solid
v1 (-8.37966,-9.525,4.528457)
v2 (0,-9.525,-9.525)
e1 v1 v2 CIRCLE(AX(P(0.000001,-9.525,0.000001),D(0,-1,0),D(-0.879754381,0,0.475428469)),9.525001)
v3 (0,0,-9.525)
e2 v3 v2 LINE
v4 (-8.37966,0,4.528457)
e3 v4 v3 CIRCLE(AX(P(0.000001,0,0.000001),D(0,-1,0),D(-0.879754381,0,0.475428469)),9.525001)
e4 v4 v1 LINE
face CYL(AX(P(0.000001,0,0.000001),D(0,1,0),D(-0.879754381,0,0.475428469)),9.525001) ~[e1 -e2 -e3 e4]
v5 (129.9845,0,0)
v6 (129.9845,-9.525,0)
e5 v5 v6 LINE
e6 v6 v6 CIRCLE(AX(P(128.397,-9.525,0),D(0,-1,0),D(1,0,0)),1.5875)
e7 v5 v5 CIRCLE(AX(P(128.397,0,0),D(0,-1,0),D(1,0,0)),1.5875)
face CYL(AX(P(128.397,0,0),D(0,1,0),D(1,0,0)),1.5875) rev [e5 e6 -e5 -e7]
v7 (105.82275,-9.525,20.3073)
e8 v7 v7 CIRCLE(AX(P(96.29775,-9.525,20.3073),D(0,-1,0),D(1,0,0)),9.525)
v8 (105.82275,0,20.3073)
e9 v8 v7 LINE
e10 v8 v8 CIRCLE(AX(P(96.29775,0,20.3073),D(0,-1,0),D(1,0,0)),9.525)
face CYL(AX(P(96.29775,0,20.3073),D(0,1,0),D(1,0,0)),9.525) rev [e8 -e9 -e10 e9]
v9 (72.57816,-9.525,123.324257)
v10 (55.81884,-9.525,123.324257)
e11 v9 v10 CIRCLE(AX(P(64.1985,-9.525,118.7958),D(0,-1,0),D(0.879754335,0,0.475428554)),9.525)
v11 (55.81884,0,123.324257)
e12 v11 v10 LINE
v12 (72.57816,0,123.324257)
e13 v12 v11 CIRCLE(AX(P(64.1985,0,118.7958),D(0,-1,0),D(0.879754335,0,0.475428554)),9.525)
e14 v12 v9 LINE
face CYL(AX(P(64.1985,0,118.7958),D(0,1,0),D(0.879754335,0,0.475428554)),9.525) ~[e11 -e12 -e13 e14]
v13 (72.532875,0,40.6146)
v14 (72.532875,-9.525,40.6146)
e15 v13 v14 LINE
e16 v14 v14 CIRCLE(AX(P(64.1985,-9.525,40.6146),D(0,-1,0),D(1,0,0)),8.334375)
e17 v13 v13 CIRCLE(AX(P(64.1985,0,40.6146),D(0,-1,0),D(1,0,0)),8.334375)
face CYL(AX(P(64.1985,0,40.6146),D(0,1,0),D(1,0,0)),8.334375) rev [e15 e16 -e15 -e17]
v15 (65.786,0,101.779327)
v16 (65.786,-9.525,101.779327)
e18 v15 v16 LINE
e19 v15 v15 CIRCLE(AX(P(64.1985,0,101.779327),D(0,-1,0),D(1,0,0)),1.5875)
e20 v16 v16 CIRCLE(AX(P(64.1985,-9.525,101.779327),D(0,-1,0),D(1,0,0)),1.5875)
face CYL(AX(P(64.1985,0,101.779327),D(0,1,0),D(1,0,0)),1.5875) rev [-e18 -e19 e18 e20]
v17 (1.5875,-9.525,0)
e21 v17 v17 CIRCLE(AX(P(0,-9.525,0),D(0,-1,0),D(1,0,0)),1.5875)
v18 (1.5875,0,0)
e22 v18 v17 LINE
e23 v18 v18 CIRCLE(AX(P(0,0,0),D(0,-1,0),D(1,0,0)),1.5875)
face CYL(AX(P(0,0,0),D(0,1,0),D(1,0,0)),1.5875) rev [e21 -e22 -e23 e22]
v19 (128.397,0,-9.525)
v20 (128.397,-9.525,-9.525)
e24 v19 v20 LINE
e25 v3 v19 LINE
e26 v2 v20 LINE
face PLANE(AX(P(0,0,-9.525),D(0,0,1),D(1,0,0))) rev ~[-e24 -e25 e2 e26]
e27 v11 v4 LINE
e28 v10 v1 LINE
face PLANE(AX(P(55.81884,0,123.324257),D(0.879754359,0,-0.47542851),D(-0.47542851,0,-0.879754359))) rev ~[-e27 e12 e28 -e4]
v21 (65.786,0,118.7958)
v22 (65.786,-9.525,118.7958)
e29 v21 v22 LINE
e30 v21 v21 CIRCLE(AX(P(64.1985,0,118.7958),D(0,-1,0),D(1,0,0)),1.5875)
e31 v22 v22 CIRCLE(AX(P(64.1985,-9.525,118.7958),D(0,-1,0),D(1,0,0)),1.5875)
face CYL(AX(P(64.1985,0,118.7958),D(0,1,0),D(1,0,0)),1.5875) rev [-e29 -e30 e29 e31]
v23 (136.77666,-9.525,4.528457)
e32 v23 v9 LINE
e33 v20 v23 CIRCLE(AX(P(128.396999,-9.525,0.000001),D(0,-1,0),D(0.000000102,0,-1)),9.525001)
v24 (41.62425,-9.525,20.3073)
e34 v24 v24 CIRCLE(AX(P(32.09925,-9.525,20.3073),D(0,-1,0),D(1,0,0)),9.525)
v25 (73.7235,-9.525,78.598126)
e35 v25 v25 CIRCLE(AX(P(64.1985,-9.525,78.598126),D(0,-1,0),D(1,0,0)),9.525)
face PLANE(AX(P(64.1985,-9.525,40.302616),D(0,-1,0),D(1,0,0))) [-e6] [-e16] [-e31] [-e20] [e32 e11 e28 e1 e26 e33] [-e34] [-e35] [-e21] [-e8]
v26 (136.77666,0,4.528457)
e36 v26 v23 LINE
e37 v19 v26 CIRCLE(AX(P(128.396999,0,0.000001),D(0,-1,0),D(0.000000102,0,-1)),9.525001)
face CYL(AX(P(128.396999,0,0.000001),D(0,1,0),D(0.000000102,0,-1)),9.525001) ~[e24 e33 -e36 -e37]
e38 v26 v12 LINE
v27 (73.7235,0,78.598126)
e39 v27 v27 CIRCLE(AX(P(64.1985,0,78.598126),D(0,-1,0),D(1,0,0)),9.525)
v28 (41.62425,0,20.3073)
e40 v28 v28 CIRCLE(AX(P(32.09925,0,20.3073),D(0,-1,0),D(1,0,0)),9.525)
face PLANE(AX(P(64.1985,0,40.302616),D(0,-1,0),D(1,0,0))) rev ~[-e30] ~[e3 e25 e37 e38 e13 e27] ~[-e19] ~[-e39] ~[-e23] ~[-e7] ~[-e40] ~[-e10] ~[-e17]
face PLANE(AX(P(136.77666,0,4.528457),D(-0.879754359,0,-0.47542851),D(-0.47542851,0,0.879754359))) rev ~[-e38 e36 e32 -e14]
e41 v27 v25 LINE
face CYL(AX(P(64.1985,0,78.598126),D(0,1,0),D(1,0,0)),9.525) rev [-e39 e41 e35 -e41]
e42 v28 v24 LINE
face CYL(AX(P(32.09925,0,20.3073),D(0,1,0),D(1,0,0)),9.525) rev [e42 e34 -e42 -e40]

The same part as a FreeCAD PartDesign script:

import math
import FreeCAD as App
import Part
import Sketcher
from FreeCAD import Vector
Q = App.Units.Quantity

doc = App.newDocument("Part")
body = doc.addObject("PartDesign::Body", "Body")

sketch1 = body.newObject("Sketcher::SketchObject", "Sketch")
sketch1.AttachmentSupport = (doc.getObject("XZ_Plane"), [""])
sketch1.MapMode = "FlatFace"
sketch1.addGeometry([
    Part.LineSegment(Vector(136.8, 4.5, 0), Vector(72.6, 123.3, 0)),
    Part.ArcOfCircle(Part.Circle(Vector(64.2, 118.8, 0), Vector(0, 0, 1), 9.5), math.radians(28), math.radians(152)),
    Part.LineSegment(Vector(55.8, 123.3, 0), Vector(-8.4, 4.5, 0)),
    Part.ArcOfCircle(Part.Circle(Vector(0, 0, 0), Vector(0, 0, 1), 9.5), math.radians(152), math.radians(270)),
    Part.LineSegment(Vector(0, -9.5, 0), Vector(128.4, -9.5, 0)),
    Part.ArcOfCircle(Part.Circle(Vector(128.4, 0, 0), Vector(0, 0, 1), 9.5), math.radians(-90), math.radians(28)),
    Part.Circle(Vector(0, 0, 0), Vector(0, 0, 1), 1.6),
    Part.Circle(Vector(32.1, 20.3, 0), Vector(0, 0, 1), 9.5),
    Part.Circle(Vector(96.3, 20.3, 0), Vector(0, 0, 1), 9.5),
    Part.Circle(Vector(128.4, 0, 0), Vector(0, 0, 1), 1.6),
    Part.Circle(Vector(64.2, 40.6, 0), Vector(0, 0, 1), 8.3),
    Part.Circle(Vector(64.2, 78.6, 0), Vector(0, 0, 1), 9.5),
    Part.Circle(Vector(64.2, 101.8, 0), Vector(0, 0, 1), 1.6),
    Part.Circle(Vector(64.2, 118.8, 0), Vector(0, 0, 1), 1.6),
], False)
sketch1.addConstraint([
    Sketcher.Constraint("Tangent", 0, 2, 1, 1),
    Sketcher.Constraint("Tangent", 1, 2, 2, 1),
    Sketcher.Constraint("Tangent", 2, 2, 3, 1),
    Sketcher.Constraint("Tangent", 3, 2, 4, 1),
    Sketcher.Constraint("Tangent", 4, 2, 5, 1),
    Sketcher.Constraint("Tangent", 5, 2, 0, 1),
    Sketcher.Constraint("Horizontal", 4),
    Sketcher.Constraint("Coincident", 3, 3, -1, 1),
    Sketcher.Constraint("Coincident", 6, 3, -1, 1),
    Sketcher.Constraint("Coincident", 9, 3, 5, 3),
    Sketcher.Constraint("Coincident", 13, 3, 1, 3),
    Sketcher.Constraint("Equal", 1, 3),
    Sketcher.Constraint("Equal", 3, 5),
    Sketcher.Constraint("Equal", 5, 7),
    Sketcher.Constraint("Equal", 7, 8),
    Sketcher.Constraint("Equal", 6, 9),
    Sketcher.Constraint("Equal", 8, 11),
    Sketcher.Constraint("Equal", 9, 12),
    Sketcher.Constraint("Equal", 12, 13),
    Sketcher.Constraint("Horizontal", 7, 3, 8, 3),
    Sketcher.Constraint("Horizontal", 0, 2, 1, 2),
    Sketcher.Constraint("Vertical", 1, 3, 10, 3),
    Sketcher.Constraint("Vertical", 10, 3, 11, 3),
    Sketcher.Constraint("Vertical", 11, 3, 12, 3),
    Sketcher.Constraint("Diameter", 7, Q("0.75 in")),
    Sketcher.Constraint("Diameter", 6, Q("0.125 in")),
    Sketcher.Constraint("Diameter", 10, Q("0.65625 in")),
    Sketcher.Constraint("DistanceX", 4, 1, 4, 2, Q("5.055 in")),
    Sketcher.Constraint("DistanceY", -1, 1, 1, 3, Q("4.677 in")),
    Sketcher.Constraint("DistanceY", -1, 1, 10, 3, Q("1.599 in")),
    Sketcher.Constraint("DistanceY", -1, 1, 7, 3, Q("0.7995 in")),
    Sketcher.Constraint("DistanceX", 7, 3, 8, 3, Q("2.5275 in")),
    Sketcher.Constraint("DistanceY", 11, 3, 12, 3, 23.181201),
    Sketcher.Constraint("DistanceX", -1, 1, 7, 3, 32.09925),
    Sketcher.Constraint("DistanceY", 12, 3, 0, 2, 21.54493),
])
pad1 = body.newObject("PartDesign::Pad", "Pad")
pad1.Profile = sketch1
pad1.Length = Q("0.375 in")

doc.recompute()
